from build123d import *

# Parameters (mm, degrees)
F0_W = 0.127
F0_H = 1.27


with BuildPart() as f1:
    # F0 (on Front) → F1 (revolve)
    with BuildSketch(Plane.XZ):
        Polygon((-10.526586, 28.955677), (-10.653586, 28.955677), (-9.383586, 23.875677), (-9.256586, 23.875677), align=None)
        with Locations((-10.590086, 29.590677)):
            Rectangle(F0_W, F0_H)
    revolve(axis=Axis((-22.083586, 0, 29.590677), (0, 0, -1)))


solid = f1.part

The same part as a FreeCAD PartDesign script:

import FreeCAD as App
import Part
import Sketcher
Q = App.Units.Quantity

doc = App.newDocument("Part")
body = doc.addObject("PartDesign::Body", "Body")

sketch1 = body.newObject("Sketcher::SketchObject", "Sketch")
sketch1.AttachmentSupport = (doc.getObject("XZ_Plane"), [""])
sketch1.MapMode = "FlatFace"
sketch1.addGeometry(Part.LineSegment(App.Vector(-10.65, 28.96, 0), App.Vector(-9.38, 23.88, 0)), False)
sketch1.addGeometry(Part.LineSegment(App.Vector(-9.38, 23.88, 0), App.Vector(-9.26, 23.88, 0)), False)
sketch1.addGeometry(Part.LineSegment(App.Vector(-9.26, 23.88, 0), App.Vector(-10.53, 28.96, 0)), False)
sketch1.addGeometry(Part.LineSegment(App.Vector(-10.53, 28.96, 0), App.Vector(-10.53, 30.23, 0)), False)
sketch1.addGeometry(Part.LineSegment(App.Vector(-10.53, 30.23, 0), App.Vector(-10.65, 30.23, 0)), False)
sketch1.addGeometry(Part.LineSegment(App.Vector(-10.65, 30.23, 0), App.Vector(-10.65, 28.96, 0)), False)
sketch1.addGeometry(Part.LineSegment(App.Vector(-22.08, 30.23, 0), App.Vector(-22.08, 23.88, 0)), True)
sketch1.addConstraint(Sketcher.Constraint("Coincident", 0, 2, 1, 1))
sketch1.addConstraint(Sketcher.Constraint("Coincident", 1, 2, 2, 1))
sketch1.addConstraint(Sketcher.Constraint("Coincident", 2, 2, 3, 1))
sketch1.addConstraint(Sketcher.Constraint("Coincident", 3, 2, 4, 1))
sketch1.addConstraint(Sketcher.Constraint("Coincident", 4, 2, 5, 1))
sketch1.addConstraint(Sketcher.Constraint("Coincident", 5, 2, 0, 1))
sketch1.addConstraint(Sketcher.Constraint("Horizontal", 1))
sketch1.addConstraint(Sketcher.Constraint("Vertical", 3))
sketch1.addConstraint(Sketcher.Constraint("Horizontal", 4))
sketch1.addConstraint(Sketcher.Constraint("Vertical", 5))
sketch1.addConstraint(Sketcher.Constraint("Vertical", 6))
sketch1.addConstraint(Sketcher.Constraint("Parallel", 0, 2))
sketch1.addConstraint(Sketcher.Constraint("Horizontal", 2, 2, 5, 2))
sketch1.addConstraint(Sketcher.Constraint("Horizontal", 4, 2, 6, 1))
sketch1.addConstraint(Sketcher.Constraint("Horizontal", 1, 2, 6, 2))
sketch1.addConstraint(Sketcher.Constraint("DistanceY", 3, 1, 3, 2, Q("0.05 in")))
sketch1.addConstraint(Sketcher.Constraint("DistanceY", 6, 2, 6, 1, Q("0.25 in")))
sketch1.addConstraint(Sketcher.Constraint("DistanceX", 6, 1, 0, 2, Q("0.5 in")))
sketch1.addConstraint(Sketcher.Constraint("DistanceX", 1, 1, 1, 2, Q("0.005 in")))
sketch1.addConstraint(Sketcher.Constraint("DistanceX", 2, 2, 1, 2, Q("0.05 in")))
sketch1.addConstraint(Sketcher.Constraint("DistanceX", 0, 2, -1, 1, 9.383586))
sketch1.addConstraint(Sketcher.Constraint("DistanceY", -1, 1, 0, 2, 23.875677))
revolution = body.newObject("PartDesign::Revolution", "Revolution")
revolution.Profile = sketch1
revolution.ReferenceAxis = (sketch1, ["Axis0"])
revolution.Angle = 360

doc.recompute()
